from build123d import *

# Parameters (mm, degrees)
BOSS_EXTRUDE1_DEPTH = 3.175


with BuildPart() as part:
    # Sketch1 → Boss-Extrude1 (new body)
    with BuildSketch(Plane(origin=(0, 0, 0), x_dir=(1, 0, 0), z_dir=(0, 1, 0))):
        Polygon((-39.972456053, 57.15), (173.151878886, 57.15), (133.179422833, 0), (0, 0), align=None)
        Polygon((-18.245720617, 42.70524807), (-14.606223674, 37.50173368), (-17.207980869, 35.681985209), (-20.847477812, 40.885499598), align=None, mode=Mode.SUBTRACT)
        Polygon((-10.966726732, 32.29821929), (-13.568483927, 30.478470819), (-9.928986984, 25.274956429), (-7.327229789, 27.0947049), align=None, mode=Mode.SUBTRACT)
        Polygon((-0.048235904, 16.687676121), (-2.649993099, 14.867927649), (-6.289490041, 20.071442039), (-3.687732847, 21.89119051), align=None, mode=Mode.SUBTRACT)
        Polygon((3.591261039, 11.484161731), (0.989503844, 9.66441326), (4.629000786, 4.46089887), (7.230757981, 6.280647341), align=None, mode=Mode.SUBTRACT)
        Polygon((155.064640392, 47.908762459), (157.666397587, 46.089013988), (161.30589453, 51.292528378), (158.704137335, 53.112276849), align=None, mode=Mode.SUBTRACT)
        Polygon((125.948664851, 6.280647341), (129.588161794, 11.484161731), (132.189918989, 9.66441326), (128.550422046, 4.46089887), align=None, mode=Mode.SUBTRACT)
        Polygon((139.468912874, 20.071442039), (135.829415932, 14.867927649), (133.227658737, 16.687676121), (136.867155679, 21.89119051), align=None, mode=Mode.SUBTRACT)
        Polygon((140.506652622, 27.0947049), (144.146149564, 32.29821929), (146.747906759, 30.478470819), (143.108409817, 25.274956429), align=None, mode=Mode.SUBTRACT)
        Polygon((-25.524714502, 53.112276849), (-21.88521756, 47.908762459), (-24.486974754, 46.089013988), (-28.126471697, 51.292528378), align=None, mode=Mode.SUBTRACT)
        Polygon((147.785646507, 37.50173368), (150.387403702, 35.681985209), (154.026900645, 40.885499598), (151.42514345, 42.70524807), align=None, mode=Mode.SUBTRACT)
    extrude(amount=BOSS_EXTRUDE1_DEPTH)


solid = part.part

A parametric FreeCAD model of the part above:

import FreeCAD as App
import Part
import Sketcher

V = App.Vector
Q = App.Units.Quantity

doc = App.newDocument("Part")
params = doc.addObject("Spreadsheet::Sheet", "Params")
for row, (alias, value) in enumerate([
    ("sketch1_length", "0.25 in"),
    ("sketch1_length2", "0.125 in"),
    ("pad1_length", "0.125 in"),
], start=1):
    params.set(f"A{row}", alias)
    params.set(f"B{row}", "=" + value)
    params.setAlias(f"B{row}", alias)

body = doc.addObject("PartDesign::Body", "Body")

# Sketch on XZ plane
sketch1 = body.newObject("Sketcher::SketchObject", "Sketch")
sketch1.AttachmentSupport = (doc.getObject("XZ_Plane"), [""])
sketch1.MapMode = "FlatFace"
sketch1.addGeometry(Part.LineSegment(V(173.2, -57.1, 0), V(-40, -57.1, 0)), False)
sketch1.addGeometry(Part.LineSegment(V(-40, -57.1, 0), V(0, 0, 0)), False)
sketch1.addGeometry(Part.LineSegment(V(0, 0, 0), V(133.2, 0, 0)), False)
sketch1.addGeometry(Part.LineSegment(V(133.2, 0, 0), V(173.2, -57.1, 0)), False)
sketch1.addGeometry(Part.LineSegment(V(125.9, -6.3, 0), V(129.6, -11.5, 0)), False)
sketch1.addGeometry(Part.LineSegment(V(129.6, -11.5, 0), V(132.2, -9.7, 0)), False)
sketch1.addGeometry(Part.LineSegment(V(132.2, -9.7, 0), V(128.6, -4.5, 0)), False)
sketch1.addGeometry(Part.LineSegment(V(128.6, -4.5, 0), V(125.9, -6.3, 0)), False)
sketch1.addGeometry(Part.LineSegment(V(139.5, -20.1, 0), V(135.8, -14.9, 0)), False)
sketch1.addGeometry(Part.LineSegment(V(135.8, -14.9, 0), V(133.2, -16.7, 0)), False)
sketch1.addGeometry(Part.LineSegment(V(133.2, -16.7, 0), V(136.9, -21.9, 0)), False)
sketch1.addGeometry(Part.LineSegment(V(136.9, -21.9, 0), V(139.5, -20.1, 0)), False)
sketch1.addGeometry(Part.LineSegment(V(140.5, -27.1, 0), V(144.1, -32.3, 0)), False)
sketch1.addGeometry(Part.LineSegment(V(144.1, -32.3, 0), V(146.7, -30.5, 0)), False)
sketch1.addGeometry(Part.LineSegment(V(146.7, -30.5, 0), V(143.1, -25.3, 0)), False)
sketch1.addGeometry(Part.LineSegment(V(143.1, -25.3, 0), V(140.5, -27.1, 0)), False)
sketch1.addGeometry(Part.LineSegment(V(3.6, -11.5, 0), V(7.2, -6.3, 0)), False)
sketch1.addGeometry(Part.LineSegment(V(7.2, -6.3, 0), V(4.6, -4.5, 0)), False)
sketch1.addGeometry(Part.LineSegment(V(4.6, -4.5, 0), V(1, -9.7, 0)), False)
sketch1.addGeometry(Part.LineSegment(V(1, -9.7, 0), V(3.6, -11.5, 0)), False)
sketch1.addGeometry(Part.LineSegment(V(0, -16.7, 0), V(-2.6, -14.9, 0)), False)
sketch1.addGeometry(Part.LineSegment(V(-2.6, -14.9, 0), V(-6.3, -20.1, 0)), False)
sketch1.addGeometry(Part.LineSegment(V(-6.3, -20.1, 0), V(-3.7, -21.9, 0)), False)
sketch1.addGeometry(Part.LineSegment(V(-3.7, -21.9, 0), V(0, -16.7, 0)), False)
sketch1.addGeometry(Part.LineSegment(V(-11, -32.3, 0), V(-7.3, -27.1, 0)), False)
sketch1.addGeometry(Part.LineSegment(V(-7.3, -27.1, 0), V(-9.9, -25.3, 0)), False)
sketch1.addGeometry(Part.LineSegment(V(-9.9, -25.3, 0), V(-13.6, -30.5, 0)), False)
sketch1.addGeometry(Part.LineSegment(V(-13.6, -30.5, 0), V(-11, -32.3, 0)), False)
sketch1.addGeometry(Part.LineSegment(V(147.8, -37.5, 0), V(151.4, -42.7, 0)), False)
sketch1.addGeometry(Part.LineSegment(V(151.4, -42.7, 0), V(154, -40.9, 0)), False)
sketch1.addGeometry(Part.LineSegment(V(154, -40.9, 0), V(150.4, -35.7, 0)), False)
sketch1.addGeometry(Part.LineSegment(V(150.4, -35.7, 0), V(147.8, -37.5, 0)), False)
sketch1.addGeometry(Part.LineSegment(V(155.1, -47.9, 0), V(158.7, -53.1, 0)), False)
sketch1.addGeometry(Part.LineSegment(V(158.7, -53.1, 0), V(161.3, -51.3, 0)), False)
sketch1.addGeometry(Part.LineSegment(V(161.3, -51.3, 0), V(157.7, -46.1, 0)), False)
sketch1.addGeometry(Part.LineSegment(V(157.7, -46.1, 0), V(155.1, -47.9, 0)), False)
sketch1.addGeometry(Part.LineSegment(V(-18.2, -42.7, 0), V(-14.6, -37.5, 0)), False)
sketch1.addGeometry(Part.LineSegment(V(-14.6, -37.5, 0), V(-17.2, -35.7, 0)), False)
sketch1.addGeometry(Part.LineSegment(V(-17.2, -35.7, 0), V(-20.8, -40.9, 0)), False)
sketch1.addGeometry(Part.LineSegment(V(-20.8, -40.9, 0), V(-18.2, -42.7, 0)), False)
sketch1.addGeometry(Part.LineSegment(V(-25.5, -53.1, 0), V(-21.9, -47.9, 0)), False)
sketch1.addGeometry(Part.LineSegment(V(-21.9, -47.9, 0), V(-24.5, -46.1, 0)), False)
sketch1.addGeometry(Part.LineSegment(V(-24.5, -46.1, 0), V(-28.1, -51.3, 0)), False)
sketch1.addGeometry(Part.LineSegment(V(-28.1, -51.3, 0), V(-25.5, -53.1, 0)), False)
sketch1.addConstraint(Sketcher.Constraint("Coincident", 0, 2, 1, 1))
sketch1.addConstraint(Sketcher.Constraint("Coincident", 1, 2, 2, 1))
sketch1.addConstraint(Sketcher.Constraint("Coincident", 2, 2, 3, 1))
sketch1.addConstraint(Sketcher.Constraint("Coincident", 3, 2, 0, 1))
sketch1.addConstraint(Sketcher.Constraint("Coincident", 4, 2, 5, 1))
sketch1.addConstraint(Sketcher.Constraint("Coincident", 5, 2, 6, 1))
sketch1.addConstraint(Sketcher.Constraint("Coincident", 6, 2, 7, 1))
sketch1.addConstraint(Sketcher.Constraint("Coincident", 7, 2, 4, 1))
sketch1.addConstraint(Sketcher.Constraint("Coincident", 8, 2, 9, 1))
sketch1.addConstraint(Sketcher.Constraint("Coincident", 9, 2, 10, 1))
sketch1.addConstraint(Sketcher.Constraint("Coincident", 10, 2, 11, 1))
sketch1.addConstraint(Sketcher.Constraint("Coincident", 11, 2, 8, 1))
sketch1.addConstraint(Sketcher.Constraint("Coincident", 12, 2, 13, 1))
sketch1.addConstraint(Sketcher.Constraint("Coincident", 13, 2, 14, 1))
sketch1.addConstraint(Sketcher.Constraint("Coincident", 14, 2, 15, 1))
sketch1.addConstraint(Sketcher.Constraint("Coincident", 15, 2, 12, 1))
sketch1.addConstraint(Sketcher.Constraint("Coincident", 16, 2, 17, 1))
sketch1.addConstraint(Sketcher.Constraint("Coincident", 17, 2, 18, 1))
sketch1.addConstraint(Sketcher.Constraint("Coincident", 18, 2, 19, 1))
sketch1.addConstraint(Sketcher.Constraint("Coincident", 19, 2, 16, 1))
sketch1.addConstraint(Sketcher.Constraint("Coincident", 20, 2, 21, 1))
sketch1.addConstraint(Sketcher.Constraint("Coincident", 21, 2, 22, 1))
sketch1.addConstraint(Sketcher.Constraint("Coincident", 22, 2, 23, 1))
sketch1.addConstraint(Sketcher.Constraint("Coincident", 23, 2, 20, 1))
sketch1.addConstraint(Sketcher.Constraint("Coincident", 24, 2, 25, 1))
sketch1.addConstraint(Sketcher.Constraint("Coincident", 25, 2, 26, 1))
sketch1.addConstraint(Sketcher.Constraint("Coincident", 26, 2, 27, 1))
sketch1.addConstraint(Sketcher.Constraint("Coincident", 27, 2, 24, 1))
sketch1.addConstraint(Sketcher.Constraint("Coincident", 28, 2, 29, 1))
sketch1.addConstraint(Sketcher.Constraint("Coincident", 29, 2, 30, 1))
sketch1.addConstraint(Sketcher.Constraint("Coincident", 30, 2, 31, 1))
sketch1.addConstraint(Sketcher.Constraint("Coincident", 31, 2, 28, 1))
sketch1.addConstraint(Sketcher.Constraint("Coincident", 32, 2, 33, 1))
sketch1.addConstraint(Sketcher.Constraint("Coincident", 33, 2, 34, 1))
sketch1.addConstraint(Sketcher.Constraint("Coincident", 34, 2, 35, 1))
sketch1.addConstraint(Sketcher.Constraint("Coincident", 35, 2, 32, 1))
sketch1.addConstraint(Sketcher.Constraint("Coincident", 36, 2, 37, 1))
sketch1.addConstraint(Sketcher.Constraint("Coincident", 37, 2, 38, 1))
sketch1.addConstraint(Sketcher.Constraint("Coincident", 38, 2, 39, 1))
sketch1.addConstraint(Sketcher.Constraint("Coincident", 39, 2, 36, 1))
sketch1.addConstraint(Sketcher.Constraint("Coincident", 40, 2, 41, 1))
sketch1.addConstraint(Sketcher.Constraint("Coincident", 41, 2, 42, 1))
sketch1.addConstraint(Sketcher.Constraint("Coincident", 42, 2, 43, 1))
sketch1.addConstraint(Sketcher.Constraint("Coincident", 43, 2, 40, 1))
sketch1.addConstraint(Sketcher.Constraint("Horizontal", 0))
sketch1.addConstraint(Sketcher.Constraint("Horizontal", 2))
sketch1.addConstraint(Sketcher.Constraint("Coincident", 1, 2, -1, 1))
sketch1.addConstraint(Sketcher.Constraint("Parallel", 3, 4))
sketch1.addConstraint(Sketcher.Constraint("Perpendicular", 4, 5))
sketch1.addConstraint(Sketcher.Constraint("Perpendicular", 5, 6))
sketch1.addConstraint(Sketcher.Constraint("Perpendicular", 6, 7))
sketch1.addConstraint(Sketcher.Constraint("Perpendicular", 7, 8))
sketch1.addConstraint(Sketcher.Constraint("Perpendicular", 8, 9))
sketch1.addConstraint(Sketcher.Constraint("Perpendicular", 9, 10))
sketch1.addConstraint(Sketcher.Constraint("Perpendicular", 10, 11))
sketch1.addConstraint(Sketcher.Constraint("Perpendicular", 11, 12))
sketch1.addConstraint(Sketcher.Constraint("Perpendicular", 12, 13))
sketch1.addConstraint(Sketcher.Constraint("Perpendicular", 13, 14))
sketch1.addConstraint(Sketcher.Constraint("Perpendicular", 14, 15))
sketch1.addConstraint(Sketcher.Constraint("Parallel", 1, 16))
sketch1.addConstraint(Sketcher.Constraint("Perpendicular", 16, 17))
sketch1.addConstraint(Sketcher.Constraint("Perpendicular", 17, 18))
sketch1.addConstraint(Sketcher.Constraint("Perpendicular", 18, 19))
sketch1.addConstraint(Sketcher.Constraint("Parallel", 19, 20))
sketch1.addConstraint(Sketcher.Constraint("Perpendicular", 20, 21))
sketch1.addConstraint(Sketcher.Constraint("Perpendicular", 21, 22))
sketch1.addConstraint(Sketcher.Constraint("Perpendicular", 22, 23))
sketch1.addConstraint(Sketcher.Constraint("Parallel", 23, 24))
sketch1.addConstraint(Sketcher.Constraint("Perpendicular", 24, 25))
sketch1.addConstraint(Sketcher.Constraint("Perpendicular", 25, 26))
sketch1.addConstraint(Sketcher.Constraint("Perpendicular", 26, 27))
sketch1.addConstraint(Sketcher.Constraint("Perpendicular", 15, 28))
sketch1.addConstraint(Sketcher.Constraint("Perpendicular", 28, 29))
sketch1.addConstraint(Sketcher.Constraint("Perpendicular", 29, 30))
sketch1.addConstraint(Sketcher.Constraint("Perpendicular", 30, 31))
sketch1.addConstraint(Sketcher.Constraint("Perpendicular", 31, 32))
sketch1.addConstraint(Sketcher.Constraint("Perpendicular", 32, 33))
sketch1.addConstraint(Sketcher.Constraint("Perpendicular", 33, 34))
sketch1.addConstraint(Sketcher.Constraint("Perpendicular", 34, 35))
sketch1.addConstraint(Sketcher.Constraint("Perpendicular", 27, 36))
sketch1.addConstraint(Sketcher.Constraint("Perpendicular", 36, 37))
sketch1.addConstraint(Sketcher.Constraint("Perpendicular", 37, 38))
sketch1.addConstraint(Sketcher.Constraint("Perpendicular", 38, 39))
sketch1.addConstraint(Sketcher.Constraint("Perpendicular", 39, 40))
sketch1.addConstraint(Sketcher.Constraint("Perpendicular", 40, 41))
sketch1.addConstraint(Sketcher.Constraint("Perpendicular", 41, 42))
sketch1.addConstraint(Sketcher.Constraint("Perpendicular", 42, 43))
sketch1.addConstraint(Sketcher.Constraint("Horizontal", 7, 2, 16, 2))
sketch1.addConstraint(Sketcher.Constraint("Horizontal", 6, 2, 17, 2))
sketch1.addConstraint(Sketcher.Constraint("Horizontal", 5, 2, 18, 2))
sketch1.addConstraint(Sketcher.Constraint("Horizontal", 8, 2, 20, 2))
sketch1.addConstraint(Sketcher.Constraint("Horizontal", 11, 2, 21, 2))
sketch1.addConstraint(Sketcher.Constraint("Horizontal", 10, 2, 22, 2))
sketch1.addConstraint(Sketcher.Constraint("Horizontal", 15, 2, 24, 2))
sketch1.addConstraint(Sketcher.Constraint("Horizontal", 14, 2, 25, 2))
sketch1.addConstraint(Sketcher.Constraint("Horizontal", 13, 2, 26, 2))
sketch1.addConstraint(Sketcher.Constraint("Horizontal", 31, 2, 36, 2))
sketch1.addConstraint(Sketcher.Constraint("Horizontal", 30, 2, 37, 2))
sketch1.addConstraint(Sketcher.Constraint("Horizontal", 29, 2, 38, 2))
sketch1.addConstraint(Sketcher.Constraint("Horizontal", 35, 2, 40, 2))
sketch1.addConstraint(Sketcher.Constraint("Horizontal", 34, 2, 41, 2))
sketch1.addConstraint(Sketcher.Constraint("Horizontal", 33, 2, 42, 2))
sketch1.addConstraint(Sketcher.Constraint("Equal", 1, 3))
sketch1.addConstraint(Sketcher.Constraint("Equal", 6, 8))
sketch1.addConstraint(Sketcher.Constraint("Equal", 7, 9))
sketch1.addConstraint(Sketcher.Constraint("Equal", 10, 12))
sketch1.addConstraint(Sketcher.Constraint("Equal", 11, 13))
sketch1.addConstraint(Sketcher.Constraint("Equal", 26, 28))
sketch1.addConstraint(Sketcher.Constraint("Equal", 27, 29))
sketch1.addConstraint(Sketcher.Constraint("Equal", 30, 32))
sketch1.addConstraint(Sketcher.Constraint("Equal", 31, 33))
sketch1.addConstraint(Sketcher.Constraint("Distance", 4, Q("0.25 in")))
sketch1.addConstraint(Sketcher.Constraint("DistanceY", 0, 2, -1, 1, Q("2.25 in")))
sketch1.addConstraint(Sketcher.Constraint("Distance", 5, Q("0.125 in")))
sketch1.addConstraint(Sketcher.Constraint("DistanceY", 6, 2, -1, 1, Q("4.460899 mm")))
sketch1.addConstraint(Sketcher.Constraint("DistanceX", -1, 1, 17, 2, Q("4.629001 mm")))
sketch1.addConstraint(Sketcher.Constraint("DistanceX", -1, 1, 29, 2, Q("154.026901 mm")))
sketch1.addConstraint(Sketcher.Constraint("DistanceY", 29, 2, -1, 1, Q("40.8855 mm")))
sketch1.addConstraint(Sketcher.Constraint("DistanceX", 6, 2, 2, 2, Q("4.629001 mm")))
sketch1.addConstraint(Sketcher.Constraint("DistanceX", 0, 2, 0, 1, Q("213.124335 mm")))
sketch1.addConstraint(Sketcher.Constraint("DistanceX", 2, 1, 2, 2, Q("133.179423 mm")))
sketch1.addConstraint(Sketcher.Constraint("DistanceX", -1, 1, 9, 2, Q("133.227659 mm")))
sketch1.addConstraint(Sketcher.Constraint("DistanceY", 10, 2, -1, 1, Q("21.891191 mm")))
sketch1.addConstraint(Sketcher.Constraint("DistanceX", -1, 1, 12, 2, Q("144.14615 mm")))
sketch1.addConstraint(Sketcher.Constraint("DistanceY", 12, 2, -1, 1, Q("32.298219 mm")))
sketch1.addConstraint(Sketcher.Constraint("DistanceX", 21, 2, -1, 1, Q("6.28949 mm")))
sketch1.addConstraint(Sketcher.Constraint("DistanceX", 24, 2, -1, 1, Q("7.32723 mm")))
sketch1.addConstraint(Sketcher.Constraint("DistanceY", 33, 2, -1, 1, Q("51.292528 mm")))
sketch1.addConstraint(Sketcher.Constraint("DistanceX", -1, 1, 35, 2, Q("155.06464 mm")))
sketch1.addConstraint(Sketcher.Constraint("DistanceX", 37, 2, -1, 1, Q("17.207981 mm")))
sketch1.addConstraint(Sketcher.Constraint("DistanceX", 42, 2, -1, 1, Q("28.126472 mm")))
sketch1.setExpression("Constraints[111]", "Params.sketch1_length")
sketch1.setExpression("Constraints[113]", "Params.sketch1_length2")
pad1 = body.newObject("PartDesign::Pad", "Pad")
pad1.Profile = sketch1
pad1.setExpression("Length", "Params.pad1_length")
pad1.Reversed = True

doc.recompute()
